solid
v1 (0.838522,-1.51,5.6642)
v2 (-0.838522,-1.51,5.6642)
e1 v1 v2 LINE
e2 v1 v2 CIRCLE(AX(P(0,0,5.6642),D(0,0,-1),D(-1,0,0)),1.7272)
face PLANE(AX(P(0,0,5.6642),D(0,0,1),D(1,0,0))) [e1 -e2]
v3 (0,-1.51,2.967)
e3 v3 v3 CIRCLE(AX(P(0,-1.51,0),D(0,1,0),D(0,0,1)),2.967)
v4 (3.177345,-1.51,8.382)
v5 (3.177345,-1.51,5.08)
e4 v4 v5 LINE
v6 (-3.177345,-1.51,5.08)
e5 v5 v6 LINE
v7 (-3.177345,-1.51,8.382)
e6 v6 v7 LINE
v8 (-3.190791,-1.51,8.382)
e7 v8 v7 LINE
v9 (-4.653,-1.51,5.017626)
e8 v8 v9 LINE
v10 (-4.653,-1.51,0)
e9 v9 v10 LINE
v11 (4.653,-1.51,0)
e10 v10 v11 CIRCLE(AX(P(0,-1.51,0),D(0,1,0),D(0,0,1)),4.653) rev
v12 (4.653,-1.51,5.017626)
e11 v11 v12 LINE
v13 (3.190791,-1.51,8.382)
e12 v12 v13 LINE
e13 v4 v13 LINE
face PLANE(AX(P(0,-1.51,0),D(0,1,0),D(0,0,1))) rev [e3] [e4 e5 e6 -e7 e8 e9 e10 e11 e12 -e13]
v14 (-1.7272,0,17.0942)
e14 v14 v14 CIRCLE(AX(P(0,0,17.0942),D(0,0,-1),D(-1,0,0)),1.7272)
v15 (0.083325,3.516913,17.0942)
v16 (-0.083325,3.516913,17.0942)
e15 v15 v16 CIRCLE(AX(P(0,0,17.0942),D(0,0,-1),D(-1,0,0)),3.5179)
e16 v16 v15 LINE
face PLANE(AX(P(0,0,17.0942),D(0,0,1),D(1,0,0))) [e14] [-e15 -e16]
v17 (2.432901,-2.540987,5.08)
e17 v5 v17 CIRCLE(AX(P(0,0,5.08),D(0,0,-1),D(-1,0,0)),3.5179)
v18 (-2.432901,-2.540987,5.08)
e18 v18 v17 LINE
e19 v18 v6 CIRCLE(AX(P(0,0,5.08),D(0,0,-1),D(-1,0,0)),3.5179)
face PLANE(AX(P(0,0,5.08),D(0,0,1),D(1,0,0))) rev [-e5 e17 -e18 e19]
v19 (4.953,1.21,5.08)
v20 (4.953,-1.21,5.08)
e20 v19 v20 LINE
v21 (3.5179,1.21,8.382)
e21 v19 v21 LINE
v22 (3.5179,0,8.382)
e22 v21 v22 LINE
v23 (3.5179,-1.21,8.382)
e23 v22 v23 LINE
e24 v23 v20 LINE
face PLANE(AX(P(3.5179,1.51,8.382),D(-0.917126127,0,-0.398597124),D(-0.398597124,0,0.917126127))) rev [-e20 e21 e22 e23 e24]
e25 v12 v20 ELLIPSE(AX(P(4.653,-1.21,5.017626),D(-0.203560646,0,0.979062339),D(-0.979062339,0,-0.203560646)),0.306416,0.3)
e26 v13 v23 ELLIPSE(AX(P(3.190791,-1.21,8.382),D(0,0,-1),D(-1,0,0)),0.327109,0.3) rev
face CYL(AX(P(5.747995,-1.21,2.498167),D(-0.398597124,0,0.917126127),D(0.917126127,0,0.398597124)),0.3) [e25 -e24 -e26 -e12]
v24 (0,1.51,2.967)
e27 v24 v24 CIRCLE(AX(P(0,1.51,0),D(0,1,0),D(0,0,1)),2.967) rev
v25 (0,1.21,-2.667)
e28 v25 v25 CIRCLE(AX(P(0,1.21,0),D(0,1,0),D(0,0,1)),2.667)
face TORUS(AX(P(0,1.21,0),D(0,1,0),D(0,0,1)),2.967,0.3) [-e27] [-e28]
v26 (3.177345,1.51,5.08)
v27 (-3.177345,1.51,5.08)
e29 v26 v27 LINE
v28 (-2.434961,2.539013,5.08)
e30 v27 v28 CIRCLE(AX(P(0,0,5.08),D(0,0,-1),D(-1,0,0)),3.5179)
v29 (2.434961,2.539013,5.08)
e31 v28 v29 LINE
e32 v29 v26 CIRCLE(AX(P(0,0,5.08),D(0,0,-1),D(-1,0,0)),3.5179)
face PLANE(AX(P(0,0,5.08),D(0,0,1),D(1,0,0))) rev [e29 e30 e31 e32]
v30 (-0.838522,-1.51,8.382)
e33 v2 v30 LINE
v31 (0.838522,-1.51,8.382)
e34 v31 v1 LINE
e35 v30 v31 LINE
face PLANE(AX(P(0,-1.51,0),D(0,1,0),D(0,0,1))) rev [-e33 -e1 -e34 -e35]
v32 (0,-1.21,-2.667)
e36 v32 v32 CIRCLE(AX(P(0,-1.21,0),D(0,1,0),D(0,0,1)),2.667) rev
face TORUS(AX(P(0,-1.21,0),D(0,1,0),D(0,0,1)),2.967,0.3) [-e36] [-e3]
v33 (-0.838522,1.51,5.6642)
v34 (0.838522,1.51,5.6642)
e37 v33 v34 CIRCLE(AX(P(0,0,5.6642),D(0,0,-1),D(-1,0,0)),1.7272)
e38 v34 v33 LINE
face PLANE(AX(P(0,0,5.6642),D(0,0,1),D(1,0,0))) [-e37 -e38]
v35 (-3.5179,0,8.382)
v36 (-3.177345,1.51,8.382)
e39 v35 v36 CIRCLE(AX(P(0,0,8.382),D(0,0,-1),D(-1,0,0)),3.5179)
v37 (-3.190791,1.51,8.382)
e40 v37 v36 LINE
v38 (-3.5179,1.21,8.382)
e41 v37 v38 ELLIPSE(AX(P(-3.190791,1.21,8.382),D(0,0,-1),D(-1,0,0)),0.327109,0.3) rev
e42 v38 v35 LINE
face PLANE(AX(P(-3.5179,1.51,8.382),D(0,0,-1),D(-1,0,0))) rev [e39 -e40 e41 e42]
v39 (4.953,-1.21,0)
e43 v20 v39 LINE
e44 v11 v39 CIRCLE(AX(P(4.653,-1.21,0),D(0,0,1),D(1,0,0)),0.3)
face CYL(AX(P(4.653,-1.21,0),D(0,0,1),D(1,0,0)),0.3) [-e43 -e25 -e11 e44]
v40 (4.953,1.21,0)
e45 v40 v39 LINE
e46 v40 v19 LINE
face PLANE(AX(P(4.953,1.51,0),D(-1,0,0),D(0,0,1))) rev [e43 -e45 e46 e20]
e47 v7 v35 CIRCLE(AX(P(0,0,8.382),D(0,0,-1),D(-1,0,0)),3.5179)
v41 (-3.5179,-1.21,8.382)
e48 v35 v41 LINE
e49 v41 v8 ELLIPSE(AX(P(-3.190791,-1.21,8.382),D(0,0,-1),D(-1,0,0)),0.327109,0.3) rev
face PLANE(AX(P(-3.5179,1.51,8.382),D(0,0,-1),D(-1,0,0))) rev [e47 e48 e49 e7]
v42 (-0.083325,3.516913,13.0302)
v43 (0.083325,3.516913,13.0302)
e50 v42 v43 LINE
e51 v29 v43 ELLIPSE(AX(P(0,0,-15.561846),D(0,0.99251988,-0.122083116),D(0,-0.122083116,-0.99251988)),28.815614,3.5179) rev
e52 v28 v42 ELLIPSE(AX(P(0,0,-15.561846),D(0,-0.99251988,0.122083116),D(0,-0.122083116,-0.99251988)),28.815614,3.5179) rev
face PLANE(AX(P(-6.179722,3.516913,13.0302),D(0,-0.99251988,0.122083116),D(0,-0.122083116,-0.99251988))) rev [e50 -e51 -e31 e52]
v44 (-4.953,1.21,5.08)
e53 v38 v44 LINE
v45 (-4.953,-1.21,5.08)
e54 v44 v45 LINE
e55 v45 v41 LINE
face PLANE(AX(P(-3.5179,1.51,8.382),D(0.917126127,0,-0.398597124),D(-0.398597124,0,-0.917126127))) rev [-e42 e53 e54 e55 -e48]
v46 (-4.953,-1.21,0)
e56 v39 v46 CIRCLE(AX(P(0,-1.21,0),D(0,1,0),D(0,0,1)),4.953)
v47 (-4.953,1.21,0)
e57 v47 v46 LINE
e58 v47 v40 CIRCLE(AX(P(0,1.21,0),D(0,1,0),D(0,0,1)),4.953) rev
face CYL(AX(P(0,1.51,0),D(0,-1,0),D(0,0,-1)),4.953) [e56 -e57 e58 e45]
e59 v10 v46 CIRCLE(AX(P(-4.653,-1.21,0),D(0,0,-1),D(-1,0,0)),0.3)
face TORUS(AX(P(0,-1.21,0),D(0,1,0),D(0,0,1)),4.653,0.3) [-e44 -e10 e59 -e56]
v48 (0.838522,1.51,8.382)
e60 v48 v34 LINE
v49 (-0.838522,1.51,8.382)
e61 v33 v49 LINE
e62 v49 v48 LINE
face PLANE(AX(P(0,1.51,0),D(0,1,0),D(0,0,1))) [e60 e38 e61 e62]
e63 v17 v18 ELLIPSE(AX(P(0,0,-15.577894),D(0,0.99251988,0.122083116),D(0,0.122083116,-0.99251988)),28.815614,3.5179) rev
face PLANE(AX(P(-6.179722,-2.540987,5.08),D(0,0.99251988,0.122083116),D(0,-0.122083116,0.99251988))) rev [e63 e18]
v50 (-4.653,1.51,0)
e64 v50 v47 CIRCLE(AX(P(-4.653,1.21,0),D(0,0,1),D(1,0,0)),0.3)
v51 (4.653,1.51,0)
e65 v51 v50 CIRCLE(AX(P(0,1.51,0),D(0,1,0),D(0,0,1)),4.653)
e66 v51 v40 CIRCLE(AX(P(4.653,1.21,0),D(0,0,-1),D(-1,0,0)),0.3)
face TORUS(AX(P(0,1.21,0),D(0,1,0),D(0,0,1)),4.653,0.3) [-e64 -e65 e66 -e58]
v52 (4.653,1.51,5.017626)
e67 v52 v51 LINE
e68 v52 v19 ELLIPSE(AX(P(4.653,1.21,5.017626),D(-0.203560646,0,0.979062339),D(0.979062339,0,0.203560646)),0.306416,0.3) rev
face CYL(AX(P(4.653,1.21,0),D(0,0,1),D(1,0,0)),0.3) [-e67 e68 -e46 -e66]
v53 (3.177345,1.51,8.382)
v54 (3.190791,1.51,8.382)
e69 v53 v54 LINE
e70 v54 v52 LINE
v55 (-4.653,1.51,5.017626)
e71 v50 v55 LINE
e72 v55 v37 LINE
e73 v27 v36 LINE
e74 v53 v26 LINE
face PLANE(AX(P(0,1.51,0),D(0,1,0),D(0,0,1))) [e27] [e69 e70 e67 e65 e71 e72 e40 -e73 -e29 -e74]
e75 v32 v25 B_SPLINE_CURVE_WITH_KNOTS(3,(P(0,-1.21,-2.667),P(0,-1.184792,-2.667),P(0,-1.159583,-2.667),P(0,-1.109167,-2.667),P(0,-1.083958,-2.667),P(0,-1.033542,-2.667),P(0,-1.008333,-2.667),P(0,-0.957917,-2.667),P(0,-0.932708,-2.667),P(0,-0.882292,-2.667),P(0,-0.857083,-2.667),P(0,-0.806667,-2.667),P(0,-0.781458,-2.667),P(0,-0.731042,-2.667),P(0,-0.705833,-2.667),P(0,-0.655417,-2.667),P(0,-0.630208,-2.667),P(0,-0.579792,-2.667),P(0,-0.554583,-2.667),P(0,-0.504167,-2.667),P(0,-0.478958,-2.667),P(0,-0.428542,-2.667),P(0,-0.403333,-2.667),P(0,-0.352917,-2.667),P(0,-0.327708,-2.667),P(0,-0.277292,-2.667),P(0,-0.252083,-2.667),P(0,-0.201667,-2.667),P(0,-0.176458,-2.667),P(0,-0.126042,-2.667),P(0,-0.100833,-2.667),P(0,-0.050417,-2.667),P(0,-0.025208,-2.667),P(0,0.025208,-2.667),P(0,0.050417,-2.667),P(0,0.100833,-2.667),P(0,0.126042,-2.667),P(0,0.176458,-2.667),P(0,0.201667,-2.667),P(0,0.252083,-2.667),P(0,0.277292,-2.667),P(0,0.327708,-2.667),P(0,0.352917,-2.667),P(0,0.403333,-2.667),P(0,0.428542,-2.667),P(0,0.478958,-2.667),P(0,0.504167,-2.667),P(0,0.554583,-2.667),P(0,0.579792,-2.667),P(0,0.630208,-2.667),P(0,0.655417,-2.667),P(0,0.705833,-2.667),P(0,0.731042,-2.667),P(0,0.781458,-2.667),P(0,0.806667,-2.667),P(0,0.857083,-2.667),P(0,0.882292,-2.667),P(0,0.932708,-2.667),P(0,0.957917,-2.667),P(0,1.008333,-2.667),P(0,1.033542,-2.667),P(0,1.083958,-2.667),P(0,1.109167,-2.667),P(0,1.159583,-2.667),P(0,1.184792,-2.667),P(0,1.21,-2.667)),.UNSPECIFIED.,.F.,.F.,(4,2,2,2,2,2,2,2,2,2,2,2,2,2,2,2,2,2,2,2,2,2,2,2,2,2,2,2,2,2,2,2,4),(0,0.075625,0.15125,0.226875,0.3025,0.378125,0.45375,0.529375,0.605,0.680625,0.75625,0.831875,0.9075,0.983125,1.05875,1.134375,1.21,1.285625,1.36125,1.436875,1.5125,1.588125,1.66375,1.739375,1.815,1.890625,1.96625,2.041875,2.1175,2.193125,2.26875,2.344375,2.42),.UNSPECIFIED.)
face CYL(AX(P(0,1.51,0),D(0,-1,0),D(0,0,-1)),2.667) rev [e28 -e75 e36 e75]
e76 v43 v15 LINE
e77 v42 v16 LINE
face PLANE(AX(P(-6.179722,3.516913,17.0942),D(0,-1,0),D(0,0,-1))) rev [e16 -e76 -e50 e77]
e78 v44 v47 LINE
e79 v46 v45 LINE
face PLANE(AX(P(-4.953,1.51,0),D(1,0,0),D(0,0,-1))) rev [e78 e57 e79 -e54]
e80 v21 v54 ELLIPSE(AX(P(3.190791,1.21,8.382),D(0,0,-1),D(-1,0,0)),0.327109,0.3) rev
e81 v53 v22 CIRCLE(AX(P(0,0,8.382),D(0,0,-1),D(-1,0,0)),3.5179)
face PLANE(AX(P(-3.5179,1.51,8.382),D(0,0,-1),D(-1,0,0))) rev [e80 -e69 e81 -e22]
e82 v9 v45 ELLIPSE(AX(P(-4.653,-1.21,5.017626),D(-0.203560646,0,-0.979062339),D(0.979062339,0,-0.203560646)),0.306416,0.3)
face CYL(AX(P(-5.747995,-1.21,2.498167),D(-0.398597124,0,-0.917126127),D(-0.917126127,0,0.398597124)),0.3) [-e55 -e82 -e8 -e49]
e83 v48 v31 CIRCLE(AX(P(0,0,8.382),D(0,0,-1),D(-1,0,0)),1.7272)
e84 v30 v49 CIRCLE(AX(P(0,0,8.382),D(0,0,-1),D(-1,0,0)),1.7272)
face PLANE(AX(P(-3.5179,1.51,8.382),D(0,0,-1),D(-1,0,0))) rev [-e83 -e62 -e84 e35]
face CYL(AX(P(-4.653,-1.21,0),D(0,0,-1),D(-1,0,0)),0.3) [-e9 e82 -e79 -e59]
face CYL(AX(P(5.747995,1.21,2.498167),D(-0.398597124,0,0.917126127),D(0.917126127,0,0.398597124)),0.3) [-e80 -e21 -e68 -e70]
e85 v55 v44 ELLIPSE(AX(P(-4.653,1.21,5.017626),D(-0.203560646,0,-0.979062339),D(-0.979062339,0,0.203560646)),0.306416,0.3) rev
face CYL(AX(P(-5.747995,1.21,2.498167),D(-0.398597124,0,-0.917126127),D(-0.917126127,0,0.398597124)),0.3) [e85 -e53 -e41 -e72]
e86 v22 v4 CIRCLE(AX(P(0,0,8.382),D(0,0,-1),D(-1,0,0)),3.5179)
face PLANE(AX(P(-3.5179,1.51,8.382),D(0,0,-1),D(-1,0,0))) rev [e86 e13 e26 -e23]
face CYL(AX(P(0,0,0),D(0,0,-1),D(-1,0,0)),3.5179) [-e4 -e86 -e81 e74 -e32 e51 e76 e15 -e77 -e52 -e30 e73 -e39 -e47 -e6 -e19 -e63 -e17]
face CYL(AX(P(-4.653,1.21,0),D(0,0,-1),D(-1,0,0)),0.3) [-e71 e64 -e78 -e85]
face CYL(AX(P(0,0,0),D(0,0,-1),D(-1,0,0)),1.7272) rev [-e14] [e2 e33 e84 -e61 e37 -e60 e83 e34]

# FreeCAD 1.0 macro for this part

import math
import FreeCAD as App
import Part
import Sketcher
Q = App.Units.Quantity


def edges_at(feature, points):
    """Names of the edges that pass closest to the given points."""
    edges = feature.Shape.Edges
    near = lambda p: min(range(len(edges)), key=lambda i: edges[i].distToShape(Part.Vertex(*p))[0])
    return sorted({f"Edge{near(p) + 1}" for p in points})


def add_polygon(sketch, points):
    """Adds a closed chain of lines whose ends are joined by coincident constraints."""
    first, n = sketch.GeometryCount, len(points)
    for a, b in zip(points, points[1:] + points[:1]):
        sketch.addGeometry(Part.LineSegment(App.Vector(*a, 0), App.Vector(*b, 0)), False)
    for i in range(n):
        sketch.addConstraint(Sketcher.Constraint("Coincident", first + i, 2, first + (i + 1) % n, 1))

doc = App.newDocument("Part")
body = doc.addObject("PartDesign::Body", "Body")

# Sketch on XZ plane
sketch1 = doc.addObject("Sketcher::SketchObject", "Sketch")
body.addObject(sketch1)
sketch1.AttachmentSupport = (doc.XZ_Plane, [""])
sketch1.MapMode = "FlatFace"
add_polygon(sketch1, [(-3.5179, 17.0942), (-1.7272, 17.0942), (-1.7272, 5.6642), (0, 5.6642), (0, 5.08), (-3.5179, 5.08)])  # lines 0-5
sketch1.addConstraint([
    Sketcher.Constraint("Horizontal", 0),
    Sketcher.Constraint("Vertical", 1),
    Sketcher.Constraint("Horizontal", 2),
    Sketcher.Constraint("Vertical", 3),
    Sketcher.Constraint("Horizontal", 4),
    Sketcher.Constraint("Vertical", 5),
    Sketcher.Constraint("PointOnObject", 2, 2, -2),
    Sketcher.Constraint("DistanceY", 1, 2, 1, 1, Q("0.45 in")),
    Sketcher.Constraint("DistanceY", -1, 1, 3, 2, Q("0.2 in")),
    Sketcher.Constraint("DistanceX", 2, 1, 2, 2, Q("0.068 in")),
    Sketcher.Constraint("DistanceY", 3, 2, 3, 1, Q("0.023 in")),
    Sketcher.Constraint("DistanceX", 0, 1, 0, 2, Q("0.0705 in")),
])
revolution = doc.addObject("PartDesign::Revolution", "Revolution")
body.addObject(revolution)
revolution.Profile = sketch1
revolution.ReferenceAxis = (sketch1, ["V_Axis"])
revolution.Angle = 360

# Sketch on YZ plane
sketch2 = doc.addObject("Sketcher::SketchObject", "Sketch001")
body.addObject(sketch2)
sketch2.AttachmentSupport = (doc.YZ_Plane, [""])
sketch2.MapMode = "FlatFace"
sketch2.AttachmentOffset = App.Placement(App.Vector(0, 0, -2.434961), App.Rotation())
add_polygon(sketch2, [(6.078, 19.654), (-6.078, 19.654), (-6.078, 2.52), (6.078, 2.52)])  # lines 0-3
add_polygon(sketch2, [(-3.518887, 13.0302), (-3.518887, 17.0942), (3.516913, 17.0942), (3.516913, 13.0302), (2.539013, 5.08), (-2.540987, 5.08)])  # lines 4-9
sketch2.addConstraint([
    Sketcher.Constraint("Horizontal", 0),
    Sketcher.Constraint("Vertical", 1),
    Sketcher.Constraint("Horizontal", 2),
    Sketcher.Constraint("Vertical", 3),
    Sketcher.Constraint("Vertical", 4),
    Sketcher.Constraint("Horizontal", 5),
    Sketcher.Constraint("Vertical", 6),
    Sketcher.Constraint("Horizontal", 8),
    Sketcher.Constraint("Horizontal", 6, 2, 9, 2),
    Sketcher.Constraint("Equal", 7, 9),
    Sketcher.Constraint("DistanceX", 8, 2, 8, 1, Q("0.2 in")),
    Sketcher.Constraint("DistanceY", 4, 1, 4, 2, Q("0.16 in")),
    Sketcher.Constraint("DistanceY", -1, 1, 7, 2, Q("0.2 in")),
    Sketcher.Constraint("DistanceX", 5, 1, 5, 2, Q("0.277 in")),
    Sketcher.Constraint("DistanceY", -1, 1, 4, 2, Q("0.673 in")),
    Sketcher.Constraint("DistanceX", 0, 2, 0, 1, 12.156),
    Sketcher.Constraint("DistanceY", 1, 2, 1, 1, 17.134),
    Sketcher.Constraint("DistanceX", 0, 2, -1, 1, 6.078),
    Sketcher.Constraint("DistanceY", -1, 1, 0, 2, 19.654),
    Sketcher.Constraint("DistanceX", 4, 2, -1, 1, 3.518887),
])
pocket1 = doc.addObject("PartDesign::Pocket", "Pocket")
body.addObject(pocket1)
pocket1.Profile = sketch2
pocket1.Length = 4.869922
pocket1.Reversed = True

# Sketch on XZ plane
sketch3 = doc.addObject("Sketcher::SketchObject", "Sketch002")
body.addObject(sketch3)
sketch3.AttachmentSupport = (doc.XZ_Plane, [""])
sketch3.MapMode = "FlatFace"
sketch3.addGeometry([
    Part.LineSegment(App.Vector(-4.953, 0, 0), App.Vector(-4.953, 5.08, 0)),  # 0
    Part.LineSegment(App.Vector(-4.953, 5.08, 0), App.Vector(-3.5179, 8.382, 0)),  # 1
    Part.LineSegment(App.Vector(-3.5179, 8.382, 0), App.Vector(3.5179, 8.382, 0)),  # 2
    Part.LineSegment(App.Vector(3.5179, 8.382, 0), App.Vector(4.953, 5.08, 0)),  # 3
    Part.LineSegment(App.Vector(4.953, 5.08, 0), App.Vector(4.953, 0, 0)),  # 4
    Part.ArcOfCircle(Part.Circle(App.Vector(0, 0, 0), App.Vector(0, 0, 1), 4.953), math.radians(180), math.radians(360)),  # 5
    Part.Circle(App.Vector(0, 0, 0), App.Vector(0, 0, 1), 2.667),  # 6
], False)
sketch3.addConstraint([
    Sketcher.Constraint("Coincident", 0, 2, 1, 1),
    Sketcher.Constraint("Coincident", 1, 2, 2, 1),
    Sketcher.Constraint("Coincident", 2, 2, 3, 1),
    Sketcher.Constraint("Coincident", 3, 2, 4, 1),
    Sketcher.Constraint("Tangent", 4, 2, 5, 2),
    Sketcher.Constraint("Tangent", 5, 1, 0, 1),
    Sketcher.Constraint("Vertical", 0),
    Sketcher.Constraint("Horizontal", 2),
    Sketcher.Constraint("Vertical", 4),
    Sketcher.Constraint("Coincident", 5, 3, -1, 1),
    Sketcher.Constraint("Coincident", 6, 3, -1, 1),
    Sketcher.Constraint("Horizontal", 0, 2, 3, 2),
    Sketcher.Constraint("Equal", 1, 3),
    Sketcher.Constraint("Diameter", 6, Q("0.21 in")),
    Sketcher.Constraint("DistanceY", 0, 1, 0, 2, Q("0.2 in")),
    Sketcher.Constraint("Radius", 5, Q("0.195 in")),
    Sketcher.Constraint("DistanceX", 2, 1, 2, 2, Q("0.277 in")),
    Sketcher.Constraint("DistanceY", -1, 1, 1, 2, Q("0.33 in")),
])
pad1 = doc.addObject("PartDesign::Pad", "Pad")
body.addObject(pad1)
pad1.Profile = sketch3
pad1.Length = 3.02
pad1.Midplane = True
doc.recompute()

fillet = doc.addObject("PartDesign::Fillet", "Fillet")
body.addObject(fillet)
fillet.Base = (pad1, edges_at(pad1, [
    (0, -1.51, -4.953),
    (-4.953, -1.51, 2.54),
    (-4.235, -1.51, 6.731),
    (4.235, -1.51, 6.731),
    (4.953, -1.51, 2.54),
]))
fillet.Radius = 0.3
doc.recompute()

fillet2 = doc.addObject("PartDesign::Fillet", "Fillet001")
body.addObject(fillet2)
fillet2.Base = (fillet, edges_at(fillet, [
    (4.235, 1.51, 6.731),
    (4.953, 1.51, 2.54),
    (0, 1.51, -4.953),
    (-4.953, 1.51, 2.54),
    (-4.235, 1.51, 6.731),
]))
fillet2.Radius = 0.3
doc.recompute()

fillet3 = doc.addObject("PartDesign::Fillet", "Fillet002")
body.addObject(fillet3)
fillet3.Base = (fillet2, edges_at(fillet2, [(0, 1.51, 2.667)]))
fillet3.Radius = 0.3
doc.recompute()

fillet4 = doc.addObject("PartDesign::Fillet", "Fillet003")
body.addObject(fillet4)
fillet4.Base = (fillet3, edges_at(fillet3, [(0, -1.51, 2.667)]))
fillet4.Radius = 0.3

doc.recompute()
